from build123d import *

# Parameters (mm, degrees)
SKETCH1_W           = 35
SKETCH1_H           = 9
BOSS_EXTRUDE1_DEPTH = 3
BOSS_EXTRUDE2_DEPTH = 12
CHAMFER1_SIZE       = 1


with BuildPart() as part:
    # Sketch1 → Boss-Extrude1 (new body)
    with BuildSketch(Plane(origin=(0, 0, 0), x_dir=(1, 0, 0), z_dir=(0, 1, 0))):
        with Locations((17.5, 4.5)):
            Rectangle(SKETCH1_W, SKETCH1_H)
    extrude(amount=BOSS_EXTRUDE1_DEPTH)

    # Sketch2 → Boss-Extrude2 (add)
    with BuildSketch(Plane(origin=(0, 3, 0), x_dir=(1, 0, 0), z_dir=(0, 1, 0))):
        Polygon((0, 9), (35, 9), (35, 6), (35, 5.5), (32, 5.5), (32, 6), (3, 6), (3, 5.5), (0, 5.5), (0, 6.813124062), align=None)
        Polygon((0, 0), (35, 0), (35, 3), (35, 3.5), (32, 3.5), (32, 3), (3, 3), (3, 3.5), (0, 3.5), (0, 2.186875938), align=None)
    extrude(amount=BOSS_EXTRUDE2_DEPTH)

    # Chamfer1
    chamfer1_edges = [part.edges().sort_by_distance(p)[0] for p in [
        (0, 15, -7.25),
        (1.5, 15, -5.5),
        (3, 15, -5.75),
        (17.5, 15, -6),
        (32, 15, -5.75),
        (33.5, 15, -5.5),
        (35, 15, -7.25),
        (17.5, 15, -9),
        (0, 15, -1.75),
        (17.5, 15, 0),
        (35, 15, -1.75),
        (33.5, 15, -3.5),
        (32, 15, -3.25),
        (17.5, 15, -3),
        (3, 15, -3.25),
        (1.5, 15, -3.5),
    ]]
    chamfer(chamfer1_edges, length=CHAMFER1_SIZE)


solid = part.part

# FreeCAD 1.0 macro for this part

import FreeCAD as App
import Part
import Sketcher

V = App.Vector


def edges_at(feature, points):
    """Names of the edges that pass closest to the given points."""
    edges = feature.Shape.Edges
    near = lambda p: min(range(len(edges)), key=lambda i: edges[i].distToShape(Part.Vertex(*p))[0])
    return sorted({f"Edge{near(p) + 1}" for p in points})

doc = App.newDocument("Part")
body = doc.addObject("PartDesign::Body", "Body")

# Sketch on XZ plane
sketch1 = doc.addObject("Sketcher::SketchObject", "Sketch")
body.addObject(sketch1)
sketch1.AttachmentSupport = (doc.XZ_Plane, [""])
sketch1.MapMode = "FlatFace"
sketch1.addGeometry([
    Part.LineSegment(V(0, -9, 0), V(0, 0, 0)),
    Part.LineSegment(V(0, 0, 0), V(35, 0, 0)),
    Part.LineSegment(V(35, 0, 0), V(35, -9, 0)),
    Part.LineSegment(V(35, -9, 0), V(0, -9, 0)),
], False)
sketch1.addConstraint([
    Sketcher.Constraint("Coincident", 0, 2, 1, 1),
    Sketcher.Constraint("Coincident", 1, 2, 2, 1),
    Sketcher.Constraint("Coincident", 2, 2, 3, 1),
    Sketcher.Constraint("Coincident", 3, 2, 0, 1),
    Sketcher.Constraint("Vertical", 0),
    Sketcher.Constraint("Horizontal", 1),
    Sketcher.Constraint("Vertical", 2),
    Sketcher.Constraint("Horizontal", 3),
    Sketcher.Constraint("Coincident", 0, 2, -1, 1),
    Sketcher.Constraint("DistanceX", 1, 1, 1, 2, 35.0),
    Sketcher.Constraint("DistanceY", 0, 1, 0, 2, 9.0),
])
pad1 = doc.addObject("PartDesign::Pad", "Pad")
body.addObject(pad1)
pad1.Profile = sketch1
pad1.Length = 3
pad1.Reversed = True

# Sketch on XZ plane
sketch2 = doc.addObject("Sketcher::SketchObject", "Sketch001")
body.addObject(sketch2)
sketch2.AttachmentSupport = (doc.XZ_Plane, [""])
sketch2.MapMode = "FlatFace"
sketch2.AttachmentOffset = App.Placement(V(0, 0, -3), App.Rotation())
sketch2.addGeometry([
    Part.LineSegment(V(35, -9, 0), V(0, -9, 0)),  # 0
    Part.LineSegment(V(0, -9, 0), V(0, -5.5, 0)),  # 1
    Part.LineSegment(V(0, -5.5, 0), V(3, -5.5, 0)),  # 2
    Part.LineSegment(V(3, -5.5, 0), V(3, -6, 0)),  # 3
    Part.LineSegment(V(3, -6, 0), V(32, -6, 0)),  # 4
    Part.LineSegment(V(32, -6, 0), V(32, -5.5, 0)),  # 5
    Part.LineSegment(V(32, -5.5, 0), V(35, -5.5, 0)),  # 6
    Part.LineSegment(V(35, -5.5, 0), V(35, -9, 0)),  # 7
    Part.LineSegment(V(0, 0, 0), V(35, 0, 0)),  # 8
    Part.LineSegment(V(35, 0, 0), V(35, -3.5, 0)),  # 9
    Part.LineSegment(V(35, -3.5, 0), V(32, -3.5, 0)),  # 10
    Part.LineSegment(V(32, -3.5, 0), V(32, -3, 0)),  # 11
    Part.LineSegment(V(32, -3, 0), V(3, -3, 0)),  # 12
    Part.LineSegment(V(3, -3, 0), V(3, -3.5, 0)),  # 13
    Part.LineSegment(V(3, -3.5, 0), V(0, -3.5, 0)),  # 14
    Part.LineSegment(V(0, -3.5, 0), V(0, 0, 0)),  # 15
], False)
sketch2.addConstraint([
    Sketcher.Constraint("Coincident", 0, 2, 1, 1),
    Sketcher.Constraint("Coincident", 1, 2, 2, 1),
    Sketcher.Constraint("Coincident", 2, 2, 3, 1),
    Sketcher.Constraint("Coincident", 3, 2, 4, 1),
    Sketcher.Constraint("Coincident", 4, 2, 5, 1),
    Sketcher.Constraint("Coincident", 5, 2, 6, 1),
    Sketcher.Constraint("Coincident", 6, 2, 7, 1),
    Sketcher.Constraint("Coincident", 7, 2, 0, 1),
    Sketcher.Constraint("Coincident", 8, 2, 9, 1),
    Sketcher.Constraint("Coincident", 9, 2, 10, 1),
    Sketcher.Constraint("Coincident", 10, 2, 11, 1),
    Sketcher.Constraint("Coincident", 11, 2, 12, 1),
    Sketcher.Constraint("Coincident", 12, 2, 13, 1),
    Sketcher.Constraint("Coincident", 13, 2, 14, 1),
    Sketcher.Constraint("Coincident", 14, 2, 15, 1),
    Sketcher.Constraint("Coincident", 15, 2, 8, 1),
    Sketcher.Constraint("Horizontal", 0),
    Sketcher.Constraint("Vertical", 1),
    Sketcher.Constraint("Horizontal", 2),
    Sketcher.Constraint("Vertical", 3),
    Sketcher.Constraint("Horizontal", 4),
    Sketcher.Constraint("Vertical", 5),
    Sketcher.Constraint("Horizontal", 6),
    Sketcher.Constraint("Vertical", 7),
    Sketcher.Constraint("Horizontal", 8),
    Sketcher.Constraint("Vertical", 9),
    Sketcher.Constraint("Horizontal", 10),
    Sketcher.Constraint("Vertical", 11),
    Sketcher.Constraint("Horizontal", 12),
    Sketcher.Constraint("Vertical", 13),
    Sketcher.Constraint("Horizontal", 14),
    Sketcher.Constraint("Vertical", 15),
    Sketcher.Constraint("Coincident", 15, 2, -1, 1),
    Sketcher.Constraint("PointOnObject", 0, 2, -2),
    Sketcher.Constraint("Horizontal", 2, 2, 5, 2),
    Sketcher.Constraint("Horizontal", 10, 2, 13, 2),
    Sketcher.Constraint("Vertical", 7, 2, 8, 2),
    Sketcher.Constraint("Vertical", 5, 2, 10, 2),
    Sketcher.Constraint("Vertical", 3, 2, 12, 2),
    Sketcher.Constraint("Equal", 2, 6),
    Sketcher.Constraint("Equal", 7, 9),
    Sketcher.Constraint("Equal", 5, 11),
    Sketcher.Constraint("DistanceX", 0, 2, 0, 1, 35.0),
    Sketcher.Constraint("DistanceX", 2, 1, 2, 2, 3.0),
    Sketcher.Constraint("DistanceY", 1, 1, 1, 2, 3.5),
    Sketcher.Constraint("DistanceY", 3, 2, 3, 1, 0.5),
    Sketcher.Constraint("DistanceY", 0, 2, -1, 1, 9.0),
])
pad2 = doc.addObject("PartDesign::Pad", "Pad001")
body.addObject(pad2)
pad2.Profile = sketch2
pad2.Length = 12
pad2.Reversed = True
doc.recompute()

chamfer = doc.addObject("PartDesign::Chamfer", "Chamfer")
body.addObject(chamfer)
chamfer.Base = (pad2, edges_at(pad2, [
    (0, 15, -7.25),
    (1.5, 15, -5.5),
    (3, 15, -5.75),
    (17.5, 15, -6),
    (32, 15, -5.75),
    (33.5, 15, -5.5),
    (35, 15, -7.25),
    (17.5, 15, -9),
    (0, 15, -1.75),
    (17.5, 15, 0),
    (35, 15, -1.75),
    (33.5, 15, -3.5),
    (32, 15, -3.25),
    (17.5, 15, -3),
    (3, 15, -3.25),
    (1.5, 15, -3.5),
]))
chamfer.Size = 1

doc.recompute()
